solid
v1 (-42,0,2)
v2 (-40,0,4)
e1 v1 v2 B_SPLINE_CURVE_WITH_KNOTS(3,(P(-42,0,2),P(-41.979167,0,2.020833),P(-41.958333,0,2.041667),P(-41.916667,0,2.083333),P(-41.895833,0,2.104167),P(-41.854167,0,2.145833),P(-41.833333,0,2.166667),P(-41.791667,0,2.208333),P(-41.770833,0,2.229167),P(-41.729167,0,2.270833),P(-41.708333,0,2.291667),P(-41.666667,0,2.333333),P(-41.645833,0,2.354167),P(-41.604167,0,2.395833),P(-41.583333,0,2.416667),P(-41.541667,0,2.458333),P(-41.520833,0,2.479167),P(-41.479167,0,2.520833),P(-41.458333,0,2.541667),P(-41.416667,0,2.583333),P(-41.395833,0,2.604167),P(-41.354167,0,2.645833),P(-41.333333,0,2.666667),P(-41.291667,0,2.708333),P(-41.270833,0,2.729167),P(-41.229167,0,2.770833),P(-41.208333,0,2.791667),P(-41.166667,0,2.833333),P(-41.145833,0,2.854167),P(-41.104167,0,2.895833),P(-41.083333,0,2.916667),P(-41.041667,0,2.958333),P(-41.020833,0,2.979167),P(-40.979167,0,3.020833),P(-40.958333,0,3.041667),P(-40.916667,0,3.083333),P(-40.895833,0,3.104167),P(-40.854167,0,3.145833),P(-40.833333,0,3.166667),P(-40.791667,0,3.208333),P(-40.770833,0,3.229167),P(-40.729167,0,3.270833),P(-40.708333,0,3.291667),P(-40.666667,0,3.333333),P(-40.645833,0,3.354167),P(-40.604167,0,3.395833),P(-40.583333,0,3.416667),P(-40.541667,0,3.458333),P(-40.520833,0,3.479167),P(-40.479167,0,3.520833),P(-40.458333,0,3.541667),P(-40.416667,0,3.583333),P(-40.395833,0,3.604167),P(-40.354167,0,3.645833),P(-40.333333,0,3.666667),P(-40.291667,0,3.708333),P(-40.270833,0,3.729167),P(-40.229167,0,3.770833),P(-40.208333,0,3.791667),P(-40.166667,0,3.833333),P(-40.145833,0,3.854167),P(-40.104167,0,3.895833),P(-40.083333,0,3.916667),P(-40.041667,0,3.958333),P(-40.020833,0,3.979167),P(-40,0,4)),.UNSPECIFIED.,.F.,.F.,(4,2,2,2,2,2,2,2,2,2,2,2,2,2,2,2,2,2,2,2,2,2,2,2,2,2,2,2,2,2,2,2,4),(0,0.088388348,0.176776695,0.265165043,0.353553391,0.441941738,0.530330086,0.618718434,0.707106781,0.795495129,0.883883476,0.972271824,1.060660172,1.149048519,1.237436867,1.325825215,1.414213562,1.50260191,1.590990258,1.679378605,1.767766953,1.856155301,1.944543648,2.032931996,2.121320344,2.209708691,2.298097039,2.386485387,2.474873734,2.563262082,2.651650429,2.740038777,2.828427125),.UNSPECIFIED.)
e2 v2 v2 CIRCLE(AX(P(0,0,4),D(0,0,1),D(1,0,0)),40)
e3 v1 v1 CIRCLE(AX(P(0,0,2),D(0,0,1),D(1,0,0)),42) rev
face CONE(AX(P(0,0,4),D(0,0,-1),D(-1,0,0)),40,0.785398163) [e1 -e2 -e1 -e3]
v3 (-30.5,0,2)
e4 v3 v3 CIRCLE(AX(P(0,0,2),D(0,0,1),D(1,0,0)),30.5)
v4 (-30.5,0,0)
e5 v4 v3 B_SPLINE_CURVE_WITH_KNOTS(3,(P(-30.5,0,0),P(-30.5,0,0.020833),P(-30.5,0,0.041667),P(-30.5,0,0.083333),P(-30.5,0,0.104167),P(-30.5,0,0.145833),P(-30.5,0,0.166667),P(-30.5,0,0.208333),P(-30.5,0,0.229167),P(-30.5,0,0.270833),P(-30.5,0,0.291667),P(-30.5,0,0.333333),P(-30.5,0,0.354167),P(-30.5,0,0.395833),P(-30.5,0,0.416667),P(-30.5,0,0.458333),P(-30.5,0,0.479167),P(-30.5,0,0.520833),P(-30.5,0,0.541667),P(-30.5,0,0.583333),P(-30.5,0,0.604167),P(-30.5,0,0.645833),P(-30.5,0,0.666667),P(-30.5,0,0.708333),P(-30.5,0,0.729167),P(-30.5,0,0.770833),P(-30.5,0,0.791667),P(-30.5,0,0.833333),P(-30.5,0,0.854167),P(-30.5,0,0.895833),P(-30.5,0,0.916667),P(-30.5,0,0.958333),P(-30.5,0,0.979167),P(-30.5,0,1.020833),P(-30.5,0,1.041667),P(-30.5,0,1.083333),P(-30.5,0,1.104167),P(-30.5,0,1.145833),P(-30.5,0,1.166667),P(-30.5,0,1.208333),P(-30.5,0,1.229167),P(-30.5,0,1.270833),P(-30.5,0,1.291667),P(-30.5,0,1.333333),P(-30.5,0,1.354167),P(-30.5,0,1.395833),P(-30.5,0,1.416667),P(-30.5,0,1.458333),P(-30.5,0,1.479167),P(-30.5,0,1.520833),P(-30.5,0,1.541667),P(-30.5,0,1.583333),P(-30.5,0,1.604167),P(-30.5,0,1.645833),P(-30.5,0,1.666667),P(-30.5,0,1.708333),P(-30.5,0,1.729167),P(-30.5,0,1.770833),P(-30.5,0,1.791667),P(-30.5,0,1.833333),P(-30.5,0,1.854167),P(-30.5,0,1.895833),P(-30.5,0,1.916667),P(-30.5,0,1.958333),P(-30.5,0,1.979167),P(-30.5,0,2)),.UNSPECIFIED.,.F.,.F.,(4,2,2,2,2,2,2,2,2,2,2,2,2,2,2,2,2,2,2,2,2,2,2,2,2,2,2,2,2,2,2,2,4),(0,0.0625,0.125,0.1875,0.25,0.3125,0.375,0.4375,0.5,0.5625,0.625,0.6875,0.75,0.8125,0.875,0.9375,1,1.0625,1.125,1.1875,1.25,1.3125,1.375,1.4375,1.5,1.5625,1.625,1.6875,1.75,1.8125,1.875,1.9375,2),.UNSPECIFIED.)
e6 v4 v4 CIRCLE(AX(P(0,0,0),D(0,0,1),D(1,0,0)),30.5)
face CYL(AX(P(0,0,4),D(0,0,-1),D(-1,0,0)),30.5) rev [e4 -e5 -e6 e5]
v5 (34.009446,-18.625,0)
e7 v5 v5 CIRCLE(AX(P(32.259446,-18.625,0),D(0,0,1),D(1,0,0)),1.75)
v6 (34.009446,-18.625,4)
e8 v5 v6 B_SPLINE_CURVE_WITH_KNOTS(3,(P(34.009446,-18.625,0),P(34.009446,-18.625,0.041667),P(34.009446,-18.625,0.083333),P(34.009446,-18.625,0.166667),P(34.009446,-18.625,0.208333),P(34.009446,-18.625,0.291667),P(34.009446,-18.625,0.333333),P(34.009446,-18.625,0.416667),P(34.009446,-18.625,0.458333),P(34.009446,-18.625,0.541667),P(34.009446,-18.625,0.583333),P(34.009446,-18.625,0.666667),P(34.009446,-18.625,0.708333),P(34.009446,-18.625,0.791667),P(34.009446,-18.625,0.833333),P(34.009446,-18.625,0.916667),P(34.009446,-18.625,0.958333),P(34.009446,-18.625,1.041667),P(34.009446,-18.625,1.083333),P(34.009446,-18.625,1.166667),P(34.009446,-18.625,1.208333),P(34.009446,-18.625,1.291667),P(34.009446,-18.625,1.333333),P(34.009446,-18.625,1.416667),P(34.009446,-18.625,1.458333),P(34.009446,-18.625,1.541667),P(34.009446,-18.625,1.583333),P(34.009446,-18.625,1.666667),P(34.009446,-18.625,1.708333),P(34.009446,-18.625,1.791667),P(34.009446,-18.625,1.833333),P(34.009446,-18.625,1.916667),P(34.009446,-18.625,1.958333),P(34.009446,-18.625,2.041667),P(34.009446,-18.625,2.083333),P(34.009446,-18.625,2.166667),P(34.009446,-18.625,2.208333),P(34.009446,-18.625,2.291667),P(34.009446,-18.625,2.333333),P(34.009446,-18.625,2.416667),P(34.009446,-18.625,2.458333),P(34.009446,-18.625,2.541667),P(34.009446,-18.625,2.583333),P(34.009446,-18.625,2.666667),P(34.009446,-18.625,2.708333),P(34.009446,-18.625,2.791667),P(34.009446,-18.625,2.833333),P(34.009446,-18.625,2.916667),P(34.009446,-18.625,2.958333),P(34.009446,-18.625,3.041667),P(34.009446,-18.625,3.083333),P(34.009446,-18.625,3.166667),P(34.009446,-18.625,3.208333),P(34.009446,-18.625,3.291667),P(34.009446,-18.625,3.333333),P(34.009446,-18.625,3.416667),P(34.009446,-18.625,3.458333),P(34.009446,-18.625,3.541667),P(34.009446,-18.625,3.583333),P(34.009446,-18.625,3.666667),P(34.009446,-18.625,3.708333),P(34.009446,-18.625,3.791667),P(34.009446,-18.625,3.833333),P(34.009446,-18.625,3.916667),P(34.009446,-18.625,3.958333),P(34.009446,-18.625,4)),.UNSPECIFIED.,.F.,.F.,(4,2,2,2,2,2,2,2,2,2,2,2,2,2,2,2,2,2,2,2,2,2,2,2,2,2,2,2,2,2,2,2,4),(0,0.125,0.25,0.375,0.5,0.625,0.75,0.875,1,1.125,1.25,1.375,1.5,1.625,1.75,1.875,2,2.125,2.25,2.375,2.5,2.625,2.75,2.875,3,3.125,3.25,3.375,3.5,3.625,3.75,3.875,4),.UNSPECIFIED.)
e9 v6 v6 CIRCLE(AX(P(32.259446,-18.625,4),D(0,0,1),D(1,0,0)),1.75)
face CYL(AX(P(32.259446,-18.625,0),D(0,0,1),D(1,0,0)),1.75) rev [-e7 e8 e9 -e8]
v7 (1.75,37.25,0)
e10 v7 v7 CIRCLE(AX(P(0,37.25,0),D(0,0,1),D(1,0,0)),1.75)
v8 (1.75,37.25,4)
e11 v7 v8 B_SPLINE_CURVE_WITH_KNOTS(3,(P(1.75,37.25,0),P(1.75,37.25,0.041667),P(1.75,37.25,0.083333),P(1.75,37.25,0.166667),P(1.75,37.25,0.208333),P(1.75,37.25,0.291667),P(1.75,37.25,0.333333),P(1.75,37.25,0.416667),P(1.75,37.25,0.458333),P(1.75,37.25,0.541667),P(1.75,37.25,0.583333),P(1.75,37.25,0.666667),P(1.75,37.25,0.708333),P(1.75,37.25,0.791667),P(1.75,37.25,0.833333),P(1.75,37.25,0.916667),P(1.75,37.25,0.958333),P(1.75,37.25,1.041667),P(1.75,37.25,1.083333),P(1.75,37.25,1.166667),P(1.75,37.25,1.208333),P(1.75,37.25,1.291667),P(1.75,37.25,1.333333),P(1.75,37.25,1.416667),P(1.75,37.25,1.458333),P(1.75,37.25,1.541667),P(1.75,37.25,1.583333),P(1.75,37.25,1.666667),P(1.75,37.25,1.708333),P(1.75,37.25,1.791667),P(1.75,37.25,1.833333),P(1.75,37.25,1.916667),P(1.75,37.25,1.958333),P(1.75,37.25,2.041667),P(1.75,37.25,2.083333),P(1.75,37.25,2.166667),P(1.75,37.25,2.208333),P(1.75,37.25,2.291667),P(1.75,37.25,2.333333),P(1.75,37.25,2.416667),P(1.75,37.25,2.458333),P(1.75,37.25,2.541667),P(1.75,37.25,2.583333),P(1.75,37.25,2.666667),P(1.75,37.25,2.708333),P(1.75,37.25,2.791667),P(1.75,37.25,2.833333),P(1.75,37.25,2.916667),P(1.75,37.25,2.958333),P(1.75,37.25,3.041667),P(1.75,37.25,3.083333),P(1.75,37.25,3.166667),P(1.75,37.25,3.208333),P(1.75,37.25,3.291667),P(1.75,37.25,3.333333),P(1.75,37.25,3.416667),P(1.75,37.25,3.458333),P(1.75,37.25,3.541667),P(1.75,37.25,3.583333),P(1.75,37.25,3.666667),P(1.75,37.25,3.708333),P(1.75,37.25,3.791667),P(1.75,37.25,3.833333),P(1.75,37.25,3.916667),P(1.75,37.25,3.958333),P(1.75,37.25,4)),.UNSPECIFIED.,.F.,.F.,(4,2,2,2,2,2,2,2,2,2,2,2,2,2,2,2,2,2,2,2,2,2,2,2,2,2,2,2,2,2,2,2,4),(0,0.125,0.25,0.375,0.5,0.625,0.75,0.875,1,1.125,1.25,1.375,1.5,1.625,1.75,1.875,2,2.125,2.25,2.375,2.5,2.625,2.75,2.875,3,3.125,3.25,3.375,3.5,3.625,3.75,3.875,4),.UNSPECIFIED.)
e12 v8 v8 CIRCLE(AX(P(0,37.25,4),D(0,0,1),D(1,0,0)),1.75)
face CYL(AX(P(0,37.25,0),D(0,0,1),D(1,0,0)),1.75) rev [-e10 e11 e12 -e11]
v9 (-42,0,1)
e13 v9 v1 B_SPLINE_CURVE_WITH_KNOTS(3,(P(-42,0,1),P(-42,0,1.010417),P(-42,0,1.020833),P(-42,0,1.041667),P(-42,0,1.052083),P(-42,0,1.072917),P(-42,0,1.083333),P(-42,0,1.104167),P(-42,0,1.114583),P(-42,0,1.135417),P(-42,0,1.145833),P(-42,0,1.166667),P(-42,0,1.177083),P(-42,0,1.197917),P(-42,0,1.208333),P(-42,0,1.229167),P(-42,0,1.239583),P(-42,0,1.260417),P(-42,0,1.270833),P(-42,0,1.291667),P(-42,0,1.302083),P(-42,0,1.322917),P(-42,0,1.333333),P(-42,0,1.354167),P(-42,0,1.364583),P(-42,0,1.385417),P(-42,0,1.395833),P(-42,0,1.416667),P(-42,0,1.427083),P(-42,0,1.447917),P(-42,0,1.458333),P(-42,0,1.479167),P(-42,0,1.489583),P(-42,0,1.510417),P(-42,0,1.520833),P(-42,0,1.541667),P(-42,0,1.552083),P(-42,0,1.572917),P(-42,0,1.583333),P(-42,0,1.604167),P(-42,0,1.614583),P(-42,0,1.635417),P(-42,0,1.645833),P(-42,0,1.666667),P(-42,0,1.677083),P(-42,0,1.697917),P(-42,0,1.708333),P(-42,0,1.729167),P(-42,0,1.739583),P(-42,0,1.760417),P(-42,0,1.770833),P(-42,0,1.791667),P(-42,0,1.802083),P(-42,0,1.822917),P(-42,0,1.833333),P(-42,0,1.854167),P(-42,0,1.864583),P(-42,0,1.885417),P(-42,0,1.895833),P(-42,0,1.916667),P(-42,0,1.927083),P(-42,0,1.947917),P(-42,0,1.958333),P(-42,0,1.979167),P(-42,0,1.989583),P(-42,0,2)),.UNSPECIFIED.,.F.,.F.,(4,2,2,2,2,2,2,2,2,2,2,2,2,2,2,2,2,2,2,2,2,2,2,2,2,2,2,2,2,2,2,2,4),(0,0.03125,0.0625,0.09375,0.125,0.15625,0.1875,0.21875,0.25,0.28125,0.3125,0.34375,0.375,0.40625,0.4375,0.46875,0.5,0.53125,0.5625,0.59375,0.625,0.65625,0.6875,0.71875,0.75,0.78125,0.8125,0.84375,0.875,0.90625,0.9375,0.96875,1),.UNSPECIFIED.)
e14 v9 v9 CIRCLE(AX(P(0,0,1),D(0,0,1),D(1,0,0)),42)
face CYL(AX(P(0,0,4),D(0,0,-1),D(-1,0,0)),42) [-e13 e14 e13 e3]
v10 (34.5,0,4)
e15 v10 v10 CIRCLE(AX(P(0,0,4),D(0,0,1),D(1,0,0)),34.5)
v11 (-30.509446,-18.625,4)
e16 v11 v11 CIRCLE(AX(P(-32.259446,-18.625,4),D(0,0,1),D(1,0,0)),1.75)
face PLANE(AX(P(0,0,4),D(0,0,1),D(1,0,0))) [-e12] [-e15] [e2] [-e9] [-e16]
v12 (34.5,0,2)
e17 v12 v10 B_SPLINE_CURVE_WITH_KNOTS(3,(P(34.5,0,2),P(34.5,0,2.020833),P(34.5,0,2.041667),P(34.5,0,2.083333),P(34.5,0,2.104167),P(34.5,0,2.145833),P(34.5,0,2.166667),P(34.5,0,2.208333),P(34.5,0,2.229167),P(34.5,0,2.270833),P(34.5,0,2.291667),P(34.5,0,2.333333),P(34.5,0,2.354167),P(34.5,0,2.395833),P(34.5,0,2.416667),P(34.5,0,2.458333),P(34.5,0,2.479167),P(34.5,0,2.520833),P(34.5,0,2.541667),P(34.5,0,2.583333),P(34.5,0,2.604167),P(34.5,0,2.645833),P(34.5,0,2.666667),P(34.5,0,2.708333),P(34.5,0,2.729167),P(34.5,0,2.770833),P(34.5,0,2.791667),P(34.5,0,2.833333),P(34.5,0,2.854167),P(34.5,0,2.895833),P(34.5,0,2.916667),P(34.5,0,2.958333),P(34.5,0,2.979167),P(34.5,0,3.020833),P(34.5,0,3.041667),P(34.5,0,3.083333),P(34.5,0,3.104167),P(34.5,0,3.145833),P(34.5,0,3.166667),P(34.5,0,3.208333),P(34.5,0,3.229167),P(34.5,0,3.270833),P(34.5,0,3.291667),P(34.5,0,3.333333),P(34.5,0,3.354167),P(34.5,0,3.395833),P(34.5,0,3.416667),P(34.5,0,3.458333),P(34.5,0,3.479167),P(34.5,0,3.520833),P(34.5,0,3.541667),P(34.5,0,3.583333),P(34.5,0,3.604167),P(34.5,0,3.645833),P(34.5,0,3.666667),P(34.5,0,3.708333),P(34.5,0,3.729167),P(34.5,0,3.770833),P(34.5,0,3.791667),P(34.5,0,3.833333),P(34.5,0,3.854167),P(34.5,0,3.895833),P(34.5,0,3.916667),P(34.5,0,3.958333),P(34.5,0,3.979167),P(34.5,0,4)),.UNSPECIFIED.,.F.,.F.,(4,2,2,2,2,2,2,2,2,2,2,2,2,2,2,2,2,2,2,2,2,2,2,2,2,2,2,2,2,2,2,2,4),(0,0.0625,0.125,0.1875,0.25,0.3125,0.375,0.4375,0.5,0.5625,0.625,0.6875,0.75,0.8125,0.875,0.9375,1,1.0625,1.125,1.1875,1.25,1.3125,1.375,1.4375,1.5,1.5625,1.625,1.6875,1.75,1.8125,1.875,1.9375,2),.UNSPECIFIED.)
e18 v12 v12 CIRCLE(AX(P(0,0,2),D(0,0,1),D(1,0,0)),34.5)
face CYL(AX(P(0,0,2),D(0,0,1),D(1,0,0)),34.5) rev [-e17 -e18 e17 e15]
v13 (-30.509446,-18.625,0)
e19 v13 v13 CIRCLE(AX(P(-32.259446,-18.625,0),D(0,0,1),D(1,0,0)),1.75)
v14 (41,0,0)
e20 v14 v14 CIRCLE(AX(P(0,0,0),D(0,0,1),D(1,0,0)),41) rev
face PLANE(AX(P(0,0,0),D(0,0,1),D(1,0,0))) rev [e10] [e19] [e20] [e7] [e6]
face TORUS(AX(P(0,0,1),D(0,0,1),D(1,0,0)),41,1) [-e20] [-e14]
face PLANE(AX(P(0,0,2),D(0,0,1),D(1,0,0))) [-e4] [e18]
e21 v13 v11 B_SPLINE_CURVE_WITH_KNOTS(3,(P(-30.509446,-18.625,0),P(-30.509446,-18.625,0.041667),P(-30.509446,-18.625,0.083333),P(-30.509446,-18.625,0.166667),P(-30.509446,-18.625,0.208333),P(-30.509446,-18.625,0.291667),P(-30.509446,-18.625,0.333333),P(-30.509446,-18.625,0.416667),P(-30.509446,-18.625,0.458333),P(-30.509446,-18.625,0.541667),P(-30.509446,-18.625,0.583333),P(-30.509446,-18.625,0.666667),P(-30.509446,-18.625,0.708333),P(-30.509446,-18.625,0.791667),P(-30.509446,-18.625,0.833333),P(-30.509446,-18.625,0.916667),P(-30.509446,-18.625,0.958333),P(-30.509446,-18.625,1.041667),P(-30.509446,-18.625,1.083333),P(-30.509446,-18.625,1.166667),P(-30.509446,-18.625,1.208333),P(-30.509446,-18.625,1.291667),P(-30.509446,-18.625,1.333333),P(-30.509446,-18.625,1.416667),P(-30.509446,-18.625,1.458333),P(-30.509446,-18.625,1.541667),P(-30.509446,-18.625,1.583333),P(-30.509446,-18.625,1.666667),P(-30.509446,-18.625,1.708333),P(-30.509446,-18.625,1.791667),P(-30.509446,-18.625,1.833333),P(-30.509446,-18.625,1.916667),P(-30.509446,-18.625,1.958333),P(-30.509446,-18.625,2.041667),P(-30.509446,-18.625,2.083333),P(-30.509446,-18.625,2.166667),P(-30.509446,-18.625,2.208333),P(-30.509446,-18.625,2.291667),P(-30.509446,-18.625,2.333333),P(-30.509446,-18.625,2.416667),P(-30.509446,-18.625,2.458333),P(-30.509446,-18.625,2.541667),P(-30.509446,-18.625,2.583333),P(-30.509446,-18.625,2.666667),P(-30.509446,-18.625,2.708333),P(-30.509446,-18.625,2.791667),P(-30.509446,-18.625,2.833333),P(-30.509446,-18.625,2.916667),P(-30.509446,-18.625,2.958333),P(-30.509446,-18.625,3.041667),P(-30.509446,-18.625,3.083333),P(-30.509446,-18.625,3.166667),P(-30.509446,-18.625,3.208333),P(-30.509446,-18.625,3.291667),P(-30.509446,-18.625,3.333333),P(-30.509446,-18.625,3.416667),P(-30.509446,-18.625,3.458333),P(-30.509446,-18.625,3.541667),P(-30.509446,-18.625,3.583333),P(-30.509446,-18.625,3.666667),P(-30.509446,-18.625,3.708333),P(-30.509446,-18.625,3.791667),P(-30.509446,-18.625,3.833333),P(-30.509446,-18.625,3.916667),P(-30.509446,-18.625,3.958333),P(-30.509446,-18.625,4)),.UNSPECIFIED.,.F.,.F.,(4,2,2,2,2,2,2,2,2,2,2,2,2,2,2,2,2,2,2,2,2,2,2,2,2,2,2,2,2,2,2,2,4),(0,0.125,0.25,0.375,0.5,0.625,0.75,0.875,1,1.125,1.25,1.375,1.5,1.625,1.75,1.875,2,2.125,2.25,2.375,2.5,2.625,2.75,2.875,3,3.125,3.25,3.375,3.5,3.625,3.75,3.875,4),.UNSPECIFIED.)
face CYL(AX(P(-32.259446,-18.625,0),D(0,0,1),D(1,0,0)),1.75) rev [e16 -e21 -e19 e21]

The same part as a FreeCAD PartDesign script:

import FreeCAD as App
import Part
import Sketcher
Q = App.Units.Quantity


def edges_at(feature, points):
    """Names of the edges that pass closest to the given points."""
    edges = feature.Shape.Edges
    near = lambda p: min(range(len(edges)), key=lambda i: edges[i].distToShape(Part.Vertex(*p))[0])
    return sorted({f"Edge{near(p) + 1}" for p in points})

doc = App.newDocument("Part")
body = doc.addObject("PartDesign::Body", "Body")

# Sketch on XY plane
sketch1 = doc.addObject("Sketcher::SketchObject", "Sketch")
body.addObject(sketch1)
sketch1.AttachmentSupport = (doc.XY_Plane, [""])
sketch1.MapMode = "FlatFace"
sketch1.addGeometry(Part.Circle(App.Vector(0, 0, 0), App.Vector(0, 0, 1), 42), False)
sketch1.addGeometry(Part.Circle(App.Vector(0, 0, 0), App.Vector(0, 0, 1), 30), False)
sketch1.addConstraint(Sketcher.Constraint("Coincident", 0, 3, -1, 1))
sketch1.addConstraint(Sketcher.Constraint("Coincident", 1, 3, -1, 1))
sketch1.addConstraint(Sketcher.Constraint("Diameter", 0, Q("84 mm")))
sketch1.addConstraint(Sketcher.Constraint("Diameter", 1, Q("61 mm")))
pad1 = doc.addObject("PartDesign::Pad", "Pad")
body.addObject(pad1)
pad1.Profile = sketch1
pad1.Length = 4
doc.recompute()

chamfer = doc.addObject("PartDesign::Chamfer", "Chamfer")
body.addObject(chamfer)
chamfer.Base = (pad1, edges_at(pad1, [(-42, 0, 4)]))
chamfer.Size = 2

# Sketch on XY plane
sketch2 = doc.addObject("Sketcher::SketchObject", "Sketch001")
body.addObject(sketch2)
sketch2.AttachmentSupport = (doc.XY_Plane, [""])
sketch2.MapMode = "FlatFace"
sketch2.AttachmentOffset = App.Placement(App.Vector(0, 0, 4), App.Rotation())
sketch2.addGeometry(Part.Circle(App.Vector(0, 0, 0), App.Vector(0, 0, 1), 34), False)
sketch2.addConstraint(Sketcher.Constraint("Coincident", 0, 3, -1, 1))
sketch2.addConstraint(Sketcher.Constraint("Diameter", 0, Q("69 mm")))
pocket1 = doc.addObject("PartDesign::Pocket", "Pocket")
body.addObject(pocket1)
pocket1.Profile = sketch2
pocket1.Length = 2

# Sketch on XY plane
sketch3 = doc.addObject("Sketcher::SketchObject", "Sketch002")
body.addObject(sketch3)
sketch3.AttachmentSupport = (doc.XY_Plane, [""])
sketch3.MapMode = "FlatFace"
sketch3.AttachmentOffset = App.Placement(App.Vector(0, 0, 4), App.Rotation())
sketch3.addGeometry(Part.Circle(App.Vector(0, 37.2, 0), App.Vector(0, 0, 1), 1.8), False)
sketch3.addGeometry(Part.Circle(App.Vector(32.3, -18.6, 0), App.Vector(0, 0, 1), 1.8), False)
sketch3.addGeometry(Part.Circle(App.Vector(-32.3, -18.6, 0), App.Vector(0, 0, 1), 1.8), False)
sketch3.addConstraint(Sketcher.Constraint("Equal", 0, 1))
sketch3.addConstraint(Sketcher.Constraint("Equal", 1, 2))
sketch3.addConstraint(Sketcher.Constraint("Symmetric", 1, 3, 2, 3, -2))
sketch3.addConstraint(Sketcher.Constraint("PointOnObject", 0, 3, -2))
sketch3.addConstraint(Sketcher.Constraint("Diameter", 0, Q("3.5 mm")))
sketch3.addConstraint(Sketcher.Constraint("DistanceY", -1, 1, 0, 3, Q("37.25 mm")))
sketch3.addConstraint(Sketcher.Constraint("DistanceY", 1, 3, -1, 1, Q("18.625 mm")))
sketch3.addConstraint(Sketcher.Constraint("DistanceX", -1, 1, 1, 3, Q("32.259446 mm")))
pocket2 = doc.addObject("PartDesign::Pocket", "Pocket001")
body.addObject(pocket2)
pocket2.Profile = sketch3
pocket2.Type = "ThroughAll"
doc.recompute()

fillet = doc.addObject("PartDesign::Fillet", "Fillet")
body.addObject(fillet)
fillet.Base = (pocket2, edges_at(pocket2, [(-42, 0, 0)]))
fillet.Radius = 1

doc.recompute()
